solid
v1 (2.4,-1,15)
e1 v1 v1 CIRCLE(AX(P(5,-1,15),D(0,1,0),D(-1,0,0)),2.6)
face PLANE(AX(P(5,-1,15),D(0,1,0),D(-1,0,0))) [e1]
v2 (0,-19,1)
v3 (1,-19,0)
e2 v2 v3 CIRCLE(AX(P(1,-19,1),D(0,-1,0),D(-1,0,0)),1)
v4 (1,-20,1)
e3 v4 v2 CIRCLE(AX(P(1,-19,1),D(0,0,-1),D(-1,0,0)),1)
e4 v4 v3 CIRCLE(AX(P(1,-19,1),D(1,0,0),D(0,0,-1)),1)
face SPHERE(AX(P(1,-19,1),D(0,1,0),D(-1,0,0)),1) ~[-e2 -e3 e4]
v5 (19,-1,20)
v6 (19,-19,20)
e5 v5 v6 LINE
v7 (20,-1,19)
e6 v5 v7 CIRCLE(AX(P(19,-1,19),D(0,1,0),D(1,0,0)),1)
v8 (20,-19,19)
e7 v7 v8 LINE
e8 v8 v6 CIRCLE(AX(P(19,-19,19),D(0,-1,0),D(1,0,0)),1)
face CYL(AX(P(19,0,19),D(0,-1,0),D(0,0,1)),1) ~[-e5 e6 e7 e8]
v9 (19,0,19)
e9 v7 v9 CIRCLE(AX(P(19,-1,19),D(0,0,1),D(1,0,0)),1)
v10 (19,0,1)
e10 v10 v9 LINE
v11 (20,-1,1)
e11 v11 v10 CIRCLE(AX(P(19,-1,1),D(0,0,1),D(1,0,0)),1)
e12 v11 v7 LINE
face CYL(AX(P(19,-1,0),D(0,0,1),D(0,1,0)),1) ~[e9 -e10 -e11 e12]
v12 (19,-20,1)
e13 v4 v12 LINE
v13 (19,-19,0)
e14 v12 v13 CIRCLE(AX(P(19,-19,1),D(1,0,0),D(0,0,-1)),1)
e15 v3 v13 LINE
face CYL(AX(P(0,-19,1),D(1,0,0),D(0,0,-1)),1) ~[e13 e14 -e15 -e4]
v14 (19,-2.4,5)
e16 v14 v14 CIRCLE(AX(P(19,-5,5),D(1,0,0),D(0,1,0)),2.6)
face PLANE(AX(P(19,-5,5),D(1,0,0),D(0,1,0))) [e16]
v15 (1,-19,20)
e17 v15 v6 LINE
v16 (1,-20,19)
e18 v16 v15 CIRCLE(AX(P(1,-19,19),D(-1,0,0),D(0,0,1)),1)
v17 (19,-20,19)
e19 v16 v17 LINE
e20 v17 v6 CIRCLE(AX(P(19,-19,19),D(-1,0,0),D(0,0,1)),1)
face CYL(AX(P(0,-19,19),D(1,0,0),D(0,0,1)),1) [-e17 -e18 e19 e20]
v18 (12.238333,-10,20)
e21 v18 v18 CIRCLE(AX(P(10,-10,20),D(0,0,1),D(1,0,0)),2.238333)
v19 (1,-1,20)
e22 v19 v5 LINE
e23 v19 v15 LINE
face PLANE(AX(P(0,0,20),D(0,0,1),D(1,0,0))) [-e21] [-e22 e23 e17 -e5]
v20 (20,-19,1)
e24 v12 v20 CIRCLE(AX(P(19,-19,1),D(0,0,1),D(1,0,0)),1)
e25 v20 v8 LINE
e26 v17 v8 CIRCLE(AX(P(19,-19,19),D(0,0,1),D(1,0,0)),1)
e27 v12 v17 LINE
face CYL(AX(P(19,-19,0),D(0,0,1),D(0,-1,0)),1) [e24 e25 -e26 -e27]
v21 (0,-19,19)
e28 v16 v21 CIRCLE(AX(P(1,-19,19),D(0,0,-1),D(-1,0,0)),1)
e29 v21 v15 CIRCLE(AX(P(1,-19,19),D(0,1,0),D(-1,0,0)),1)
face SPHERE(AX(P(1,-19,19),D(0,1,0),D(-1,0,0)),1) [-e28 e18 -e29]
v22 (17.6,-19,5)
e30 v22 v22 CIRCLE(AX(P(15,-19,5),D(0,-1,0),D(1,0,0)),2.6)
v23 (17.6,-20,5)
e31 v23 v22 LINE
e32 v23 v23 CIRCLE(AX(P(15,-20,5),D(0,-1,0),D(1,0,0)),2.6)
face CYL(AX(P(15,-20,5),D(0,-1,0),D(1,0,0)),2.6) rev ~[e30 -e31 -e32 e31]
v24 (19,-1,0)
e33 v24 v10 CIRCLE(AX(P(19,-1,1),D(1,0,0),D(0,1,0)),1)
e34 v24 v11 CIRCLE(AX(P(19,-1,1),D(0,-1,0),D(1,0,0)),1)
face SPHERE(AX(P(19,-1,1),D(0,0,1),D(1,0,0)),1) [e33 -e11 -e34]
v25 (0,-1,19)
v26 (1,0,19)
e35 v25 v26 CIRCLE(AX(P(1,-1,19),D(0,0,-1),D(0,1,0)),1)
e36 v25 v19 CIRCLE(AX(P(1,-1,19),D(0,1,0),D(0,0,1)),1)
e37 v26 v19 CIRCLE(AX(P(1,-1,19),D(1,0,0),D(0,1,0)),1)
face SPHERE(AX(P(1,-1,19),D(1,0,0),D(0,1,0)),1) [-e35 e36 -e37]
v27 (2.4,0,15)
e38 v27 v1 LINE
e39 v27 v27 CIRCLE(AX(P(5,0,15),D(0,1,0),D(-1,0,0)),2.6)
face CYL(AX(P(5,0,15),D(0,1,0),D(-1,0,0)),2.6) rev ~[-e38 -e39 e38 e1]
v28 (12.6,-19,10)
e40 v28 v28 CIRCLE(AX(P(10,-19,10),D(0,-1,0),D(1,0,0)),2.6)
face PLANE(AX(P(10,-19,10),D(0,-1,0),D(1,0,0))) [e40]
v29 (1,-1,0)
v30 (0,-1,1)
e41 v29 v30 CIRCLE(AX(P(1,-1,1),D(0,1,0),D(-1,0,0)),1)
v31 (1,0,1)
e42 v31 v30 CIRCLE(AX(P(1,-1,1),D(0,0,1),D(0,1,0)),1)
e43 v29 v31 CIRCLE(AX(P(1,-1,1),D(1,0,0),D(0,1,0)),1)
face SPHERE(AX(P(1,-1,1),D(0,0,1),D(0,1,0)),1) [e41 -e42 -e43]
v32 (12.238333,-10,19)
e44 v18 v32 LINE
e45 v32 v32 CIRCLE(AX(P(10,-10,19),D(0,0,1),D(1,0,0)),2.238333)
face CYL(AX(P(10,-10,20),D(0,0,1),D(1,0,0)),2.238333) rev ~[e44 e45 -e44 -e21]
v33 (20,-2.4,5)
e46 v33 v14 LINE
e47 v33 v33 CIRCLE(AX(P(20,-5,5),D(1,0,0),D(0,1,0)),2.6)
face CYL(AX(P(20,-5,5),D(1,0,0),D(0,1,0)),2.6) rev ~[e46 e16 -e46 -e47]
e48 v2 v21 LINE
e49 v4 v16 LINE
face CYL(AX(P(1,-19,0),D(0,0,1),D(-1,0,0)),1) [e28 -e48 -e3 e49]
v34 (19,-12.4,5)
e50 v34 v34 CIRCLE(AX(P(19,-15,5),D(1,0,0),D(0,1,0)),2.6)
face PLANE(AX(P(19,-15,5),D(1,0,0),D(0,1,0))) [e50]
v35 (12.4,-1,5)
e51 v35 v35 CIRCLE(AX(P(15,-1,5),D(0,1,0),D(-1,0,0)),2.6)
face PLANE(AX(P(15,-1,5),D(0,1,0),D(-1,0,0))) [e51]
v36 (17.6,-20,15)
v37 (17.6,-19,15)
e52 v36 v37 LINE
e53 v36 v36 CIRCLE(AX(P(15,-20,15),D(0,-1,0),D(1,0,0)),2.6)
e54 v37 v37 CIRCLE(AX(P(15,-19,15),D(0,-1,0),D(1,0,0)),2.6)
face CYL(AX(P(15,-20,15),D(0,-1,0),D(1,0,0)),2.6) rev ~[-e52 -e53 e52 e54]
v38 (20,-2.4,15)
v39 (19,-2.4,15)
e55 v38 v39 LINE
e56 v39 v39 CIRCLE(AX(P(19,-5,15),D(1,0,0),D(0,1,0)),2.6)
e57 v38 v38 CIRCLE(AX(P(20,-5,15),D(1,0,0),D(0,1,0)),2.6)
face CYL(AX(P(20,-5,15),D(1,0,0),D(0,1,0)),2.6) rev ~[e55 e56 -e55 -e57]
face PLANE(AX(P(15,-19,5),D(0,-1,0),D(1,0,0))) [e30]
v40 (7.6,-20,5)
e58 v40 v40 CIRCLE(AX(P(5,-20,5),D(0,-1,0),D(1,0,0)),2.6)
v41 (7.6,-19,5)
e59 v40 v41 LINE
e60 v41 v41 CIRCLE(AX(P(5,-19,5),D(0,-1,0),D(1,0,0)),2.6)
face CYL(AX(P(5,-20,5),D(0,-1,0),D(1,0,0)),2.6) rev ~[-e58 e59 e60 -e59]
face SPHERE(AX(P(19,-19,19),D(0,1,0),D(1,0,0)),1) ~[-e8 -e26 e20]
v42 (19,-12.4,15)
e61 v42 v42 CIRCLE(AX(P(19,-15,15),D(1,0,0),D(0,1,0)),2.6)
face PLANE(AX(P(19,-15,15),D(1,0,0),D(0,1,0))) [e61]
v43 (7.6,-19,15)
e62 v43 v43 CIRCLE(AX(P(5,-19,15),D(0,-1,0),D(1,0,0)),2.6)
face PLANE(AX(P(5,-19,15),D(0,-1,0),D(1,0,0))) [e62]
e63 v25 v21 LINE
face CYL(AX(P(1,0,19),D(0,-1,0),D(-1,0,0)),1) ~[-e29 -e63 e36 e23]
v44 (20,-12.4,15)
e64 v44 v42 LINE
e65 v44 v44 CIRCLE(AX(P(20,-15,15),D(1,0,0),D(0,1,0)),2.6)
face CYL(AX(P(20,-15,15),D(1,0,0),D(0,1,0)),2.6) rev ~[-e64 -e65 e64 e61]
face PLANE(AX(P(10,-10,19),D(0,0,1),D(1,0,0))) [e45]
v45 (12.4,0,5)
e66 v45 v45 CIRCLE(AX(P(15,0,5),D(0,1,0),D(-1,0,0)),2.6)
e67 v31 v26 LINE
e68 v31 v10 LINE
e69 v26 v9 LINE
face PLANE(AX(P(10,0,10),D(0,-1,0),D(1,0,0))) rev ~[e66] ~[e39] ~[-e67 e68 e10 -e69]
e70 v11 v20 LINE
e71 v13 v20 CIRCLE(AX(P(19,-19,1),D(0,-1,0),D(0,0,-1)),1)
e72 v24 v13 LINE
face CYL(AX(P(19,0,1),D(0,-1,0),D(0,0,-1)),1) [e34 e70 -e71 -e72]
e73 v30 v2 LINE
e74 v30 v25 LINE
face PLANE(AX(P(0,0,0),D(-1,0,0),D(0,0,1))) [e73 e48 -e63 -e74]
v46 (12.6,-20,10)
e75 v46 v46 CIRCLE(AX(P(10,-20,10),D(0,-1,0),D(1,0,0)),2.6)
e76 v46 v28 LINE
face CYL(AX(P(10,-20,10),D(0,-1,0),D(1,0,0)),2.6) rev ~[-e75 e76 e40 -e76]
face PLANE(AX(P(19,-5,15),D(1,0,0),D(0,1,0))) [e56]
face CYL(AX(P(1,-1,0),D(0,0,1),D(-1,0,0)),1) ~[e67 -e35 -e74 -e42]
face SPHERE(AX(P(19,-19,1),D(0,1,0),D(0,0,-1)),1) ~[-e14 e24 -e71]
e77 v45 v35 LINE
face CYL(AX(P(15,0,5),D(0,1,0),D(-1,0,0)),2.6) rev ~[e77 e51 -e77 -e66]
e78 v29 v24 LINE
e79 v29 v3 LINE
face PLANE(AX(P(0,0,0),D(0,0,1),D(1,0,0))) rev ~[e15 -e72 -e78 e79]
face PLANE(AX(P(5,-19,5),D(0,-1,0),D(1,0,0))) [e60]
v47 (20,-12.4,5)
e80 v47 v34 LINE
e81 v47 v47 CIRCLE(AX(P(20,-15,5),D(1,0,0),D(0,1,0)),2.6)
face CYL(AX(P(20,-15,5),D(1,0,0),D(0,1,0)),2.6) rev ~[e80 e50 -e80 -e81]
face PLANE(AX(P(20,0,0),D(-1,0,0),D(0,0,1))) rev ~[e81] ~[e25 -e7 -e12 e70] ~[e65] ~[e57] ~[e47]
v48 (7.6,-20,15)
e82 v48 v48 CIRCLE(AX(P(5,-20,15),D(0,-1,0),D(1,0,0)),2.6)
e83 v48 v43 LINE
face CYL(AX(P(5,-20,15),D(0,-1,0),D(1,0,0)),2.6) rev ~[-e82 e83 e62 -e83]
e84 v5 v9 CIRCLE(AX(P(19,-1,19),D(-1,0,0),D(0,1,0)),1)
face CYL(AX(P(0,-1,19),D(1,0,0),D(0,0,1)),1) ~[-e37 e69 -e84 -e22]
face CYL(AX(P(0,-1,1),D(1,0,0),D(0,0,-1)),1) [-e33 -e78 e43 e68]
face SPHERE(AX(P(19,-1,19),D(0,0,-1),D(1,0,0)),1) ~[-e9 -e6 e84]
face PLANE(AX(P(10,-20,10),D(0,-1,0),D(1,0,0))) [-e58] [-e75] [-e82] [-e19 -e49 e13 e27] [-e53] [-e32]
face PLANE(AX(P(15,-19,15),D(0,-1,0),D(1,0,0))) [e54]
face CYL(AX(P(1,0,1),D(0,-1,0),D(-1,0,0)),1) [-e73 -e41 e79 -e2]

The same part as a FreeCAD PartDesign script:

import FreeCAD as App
import Part
import Sketcher


def edges_at(feature, points):
    """Names of the edges that pass closest to the given points."""
    edges = feature.Shape.Edges
    near = lambda p: min(range(len(edges)), key=lambda i: edges[i].distToShape(Part.Vertex(*p))[0])
    return sorted({f"Edge{near(p) + 1}" for p in points})


def add_polygon(sketch, points):
    """Adds a closed chain of lines whose ends are joined by coincident constraints."""
    first, n = sketch.GeometryCount, len(points)
    for a, b in zip(points, points[1:] + points[:1]):
        sketch.addGeometry(Part.LineSegment(App.Vector(*a, 0), App.Vector(*b, 0)), False)
    for i in range(n):
        sketch.addConstraint(Sketcher.Constraint("Coincident", first + i, 2, first + (i + 1) % n, 1))

doc = App.newDocument("Part")
body = doc.addObject("PartDesign::Body", "Body")

# Sketch on XZ plane
sketch1 = body.newObject("Sketcher::SketchObject", "Sketch")
sketch1.AttachmentSupport = (doc.getObject("XZ_Plane"), [""])
sketch1.MapMode = "FlatFace"
add_polygon(sketch1, [(0, 20), (0, 0), (20, 0), (20, 20)])  # lines 0-3
sketch1.addConstraint([
    Sketcher.Constraint("Vertical", 0),
    Sketcher.Constraint("Horizontal", 1),
    Sketcher.Constraint("Vertical", 2),
    Sketcher.Constraint("Horizontal", 3),
    Sketcher.Constraint("Coincident", 0, 2, -1, 1),
    Sketcher.Constraint("Equal", 3, 0),
    Sketcher.Constraint("DistanceX", 1, 1, 1, 2, 20.0),
])
pad1 = body.newObject("PartDesign::Pad", "Pad")
pad1.Profile = sketch1
pad1.Length = 20

# Sketch on XZ plane
sketch2 = body.newObject("Sketcher::SketchObject", "Sketch001")
sketch2.AttachmentSupport = (doc.getObject("XZ_Plane"), [""])
sketch2.MapMode = "FlatFace"
sketch2.AttachmentOffset = App.Placement(App.Vector(0, 0, 20), App.Rotation())
sketch2.addGeometry([
    Part.Circle(App.Vector(10, 10, 0), App.Vector(0, 0, 1), 2.6),  # 0
    Part.Circle(App.Vector(5, 15, 0), App.Vector(0, 0, 1), 2.6),  # 1
    Part.Circle(App.Vector(15, 5, 0), App.Vector(0, 0, 1), 2.6),  # 2
    Part.Circle(App.Vector(15, 15, 0), App.Vector(0, 0, 1), 2.6),  # 3
    Part.Circle(App.Vector(5, 5, 0), App.Vector(0, 0, 1), 2.6),  # 4
], False)
sketch2.addConstraint([
    Sketcher.Constraint("Equal", 0, 1),
    Sketcher.Constraint("Equal", 1, 2),
    Sketcher.Constraint("Equal", 2, 3),
    Sketcher.Constraint("Equal", 3, 4),
    Sketcher.Constraint("Horizontal", 1, 3, 3, 3),
    Sketcher.Constraint("Horizontal", 2, 3, 4, 3),
    Sketcher.Constraint("Vertical", 2, 3, 3, 3),
    Sketcher.Constraint("Vertical", 1, 3, 4, 3),
    Sketcher.Constraint("Diameter", 0, 5.2),
    Sketcher.Constraint("DistanceX", -1, 1, 0, 3, 10.0),
    Sketcher.Constraint("DistanceY", -1, 1, 0, 3, 10.0),
    Sketcher.Constraint("DistanceX", -1, 1, 1, 3, 5.0),
    Sketcher.Constraint("DistanceY", -1, 1, 1, 3, 15.0),
    Sketcher.Constraint("DistanceX", -1, 1, 2, 3, 15.0),
    Sketcher.Constraint("DistanceY", -1, 1, 2, 3, 5.0),
])
pocket1 = body.newObject("PartDesign::Pocket", "Pocket")
pocket1.Profile = sketch2
pocket1.Length = 1

# Sketch on XZ plane
sketch3 = body.newObject("Sketcher::SketchObject", "Sketch002")
sketch3.AttachmentSupport = (doc.getObject("XZ_Plane"), [""])
sketch3.MapMode = "FlatFace"
sketch3.addGeometry([
    Part.Circle(App.Vector(5, 15, 0), App.Vector(0, 0, 1), 2.6),
    Part.Circle(App.Vector(15, 5, 0), App.Vector(0, 0, 1), 2.6),
], False)
sketch3.addConstraint([
    Sketcher.Constraint("Equal", 0, 1),
    Sketcher.Constraint("Diameter", 0, 5.2),
    Sketcher.Constraint("DistanceX", -1, 1, 0, 3, 5.0),
    Sketcher.Constraint("DistanceY", -1, 1, 0, 3, 15.0),
    Sketcher.Constraint("DistanceX", -1, 1, 1, 3, 15.0),
    Sketcher.Constraint("DistanceY", -1, 1, 1, 3, 5.0),
])
pocket2 = body.newObject("PartDesign::Pocket", "Pocket001")
pocket2.Profile = sketch3
pocket2.Length = 1
pocket2.Reversed = True

# Sketch on XY plane
sketch4 = body.newObject("Sketcher::SketchObject", "Sketch003")
sketch4.AttachmentSupport = (doc.getObject("XY_Plane"), [""])
sketch4.MapMode = "FlatFace"
sketch4.AttachmentOffset = App.Placement(App.Vector(0, 0, 20), App.Rotation())
sketch4.addGeometry(Part.Circle(App.Vector(10, -10, 0), App.Vector(0, 0, 1), 2.2), False)
sketch4.addConstraint([
    Sketcher.Constraint("DistanceX", -1, 1, 0, 3, 10.0),
    Sketcher.Constraint("DistanceY", 0, 3, -1, 1, 10.0),
    Sketcher.Constraint("Diameter", 0, 4.476666),
])
pocket3 = body.newObject("PartDesign::Pocket", "Pocket002")
pocket3.Profile = sketch4
pocket3.Length = 1

# Sketch on YZ plane
sketch5 = body.newObject("Sketcher::SketchObject", "Sketch004")
sketch5.AttachmentSupport = (doc.getObject("YZ_Plane"), [""])
sketch5.MapMode = "FlatFace"
sketch5.AttachmentOffset = App.Placement(App.Vector(0, 0, 20), App.Rotation())
sketch5.addGeometry([
    Part.Circle(App.Vector(-15, 5, 0), App.Vector(0, 0, 1), 2.6),
    Part.Circle(App.Vector(-15, 15, 0), App.Vector(0, 0, 1), 2.6),
    Part.Circle(App.Vector(-5, 15, 0), App.Vector(0, 0, 1), 2.6),
    Part.Circle(App.Vector(-5, 5, 0), App.Vector(0, 0, 1), 2.6),
], False)
sketch5.addConstraint([
    Sketcher.Constraint("Equal", 0, 1),
    Sketcher.Constraint("Equal", 1, 2),
    Sketcher.Constraint("Equal", 2, 3),
    Sketcher.Constraint("Horizontal", 1, 3, 2, 3),
    Sketcher.Constraint("Horizontal", 0, 3, 3, 3),
    Sketcher.Constraint("Vertical", 0, 3, 1, 3),
    Sketcher.Constraint("Vertical", 2, 3, 3, 3),
    Sketcher.Constraint("Diameter", 0, 5.2),
    Sketcher.Constraint("DistanceX", 0, 3, -1, 1, 15.0),
    Sketcher.Constraint("DistanceY", -1, 1, 0, 3, 5.0),
    Sketcher.Constraint("DistanceY", -1, 1, 1, 3, 15.0),
    Sketcher.Constraint("DistanceX", 2, 3, -1, 1, 5.0),
])
pocket4 = body.newObject("PartDesign::Pocket", "Pocket003")
pocket4.Profile = sketch5
pocket4.Length = 1
doc.recompute()

fillet = body.newObject("PartDesign::Fillet", "Fillet")
fillet.Base = (pocket4, edges_at(pocket4, [
    (20, 0, 10),
    (20, -10, 20),
    (10, 0, 20),
    (0, 0, 10),
    (0, -10, 20),
    (20, -10, 0),
    (10, 0, 0),
    (0, -10, 0),
    (0, -20, 10),
    (10, -20, 0),
    (20, -20, 10),
    (10, -20, 20),
]))
fillet.Radius = 1

doc.recompute()
